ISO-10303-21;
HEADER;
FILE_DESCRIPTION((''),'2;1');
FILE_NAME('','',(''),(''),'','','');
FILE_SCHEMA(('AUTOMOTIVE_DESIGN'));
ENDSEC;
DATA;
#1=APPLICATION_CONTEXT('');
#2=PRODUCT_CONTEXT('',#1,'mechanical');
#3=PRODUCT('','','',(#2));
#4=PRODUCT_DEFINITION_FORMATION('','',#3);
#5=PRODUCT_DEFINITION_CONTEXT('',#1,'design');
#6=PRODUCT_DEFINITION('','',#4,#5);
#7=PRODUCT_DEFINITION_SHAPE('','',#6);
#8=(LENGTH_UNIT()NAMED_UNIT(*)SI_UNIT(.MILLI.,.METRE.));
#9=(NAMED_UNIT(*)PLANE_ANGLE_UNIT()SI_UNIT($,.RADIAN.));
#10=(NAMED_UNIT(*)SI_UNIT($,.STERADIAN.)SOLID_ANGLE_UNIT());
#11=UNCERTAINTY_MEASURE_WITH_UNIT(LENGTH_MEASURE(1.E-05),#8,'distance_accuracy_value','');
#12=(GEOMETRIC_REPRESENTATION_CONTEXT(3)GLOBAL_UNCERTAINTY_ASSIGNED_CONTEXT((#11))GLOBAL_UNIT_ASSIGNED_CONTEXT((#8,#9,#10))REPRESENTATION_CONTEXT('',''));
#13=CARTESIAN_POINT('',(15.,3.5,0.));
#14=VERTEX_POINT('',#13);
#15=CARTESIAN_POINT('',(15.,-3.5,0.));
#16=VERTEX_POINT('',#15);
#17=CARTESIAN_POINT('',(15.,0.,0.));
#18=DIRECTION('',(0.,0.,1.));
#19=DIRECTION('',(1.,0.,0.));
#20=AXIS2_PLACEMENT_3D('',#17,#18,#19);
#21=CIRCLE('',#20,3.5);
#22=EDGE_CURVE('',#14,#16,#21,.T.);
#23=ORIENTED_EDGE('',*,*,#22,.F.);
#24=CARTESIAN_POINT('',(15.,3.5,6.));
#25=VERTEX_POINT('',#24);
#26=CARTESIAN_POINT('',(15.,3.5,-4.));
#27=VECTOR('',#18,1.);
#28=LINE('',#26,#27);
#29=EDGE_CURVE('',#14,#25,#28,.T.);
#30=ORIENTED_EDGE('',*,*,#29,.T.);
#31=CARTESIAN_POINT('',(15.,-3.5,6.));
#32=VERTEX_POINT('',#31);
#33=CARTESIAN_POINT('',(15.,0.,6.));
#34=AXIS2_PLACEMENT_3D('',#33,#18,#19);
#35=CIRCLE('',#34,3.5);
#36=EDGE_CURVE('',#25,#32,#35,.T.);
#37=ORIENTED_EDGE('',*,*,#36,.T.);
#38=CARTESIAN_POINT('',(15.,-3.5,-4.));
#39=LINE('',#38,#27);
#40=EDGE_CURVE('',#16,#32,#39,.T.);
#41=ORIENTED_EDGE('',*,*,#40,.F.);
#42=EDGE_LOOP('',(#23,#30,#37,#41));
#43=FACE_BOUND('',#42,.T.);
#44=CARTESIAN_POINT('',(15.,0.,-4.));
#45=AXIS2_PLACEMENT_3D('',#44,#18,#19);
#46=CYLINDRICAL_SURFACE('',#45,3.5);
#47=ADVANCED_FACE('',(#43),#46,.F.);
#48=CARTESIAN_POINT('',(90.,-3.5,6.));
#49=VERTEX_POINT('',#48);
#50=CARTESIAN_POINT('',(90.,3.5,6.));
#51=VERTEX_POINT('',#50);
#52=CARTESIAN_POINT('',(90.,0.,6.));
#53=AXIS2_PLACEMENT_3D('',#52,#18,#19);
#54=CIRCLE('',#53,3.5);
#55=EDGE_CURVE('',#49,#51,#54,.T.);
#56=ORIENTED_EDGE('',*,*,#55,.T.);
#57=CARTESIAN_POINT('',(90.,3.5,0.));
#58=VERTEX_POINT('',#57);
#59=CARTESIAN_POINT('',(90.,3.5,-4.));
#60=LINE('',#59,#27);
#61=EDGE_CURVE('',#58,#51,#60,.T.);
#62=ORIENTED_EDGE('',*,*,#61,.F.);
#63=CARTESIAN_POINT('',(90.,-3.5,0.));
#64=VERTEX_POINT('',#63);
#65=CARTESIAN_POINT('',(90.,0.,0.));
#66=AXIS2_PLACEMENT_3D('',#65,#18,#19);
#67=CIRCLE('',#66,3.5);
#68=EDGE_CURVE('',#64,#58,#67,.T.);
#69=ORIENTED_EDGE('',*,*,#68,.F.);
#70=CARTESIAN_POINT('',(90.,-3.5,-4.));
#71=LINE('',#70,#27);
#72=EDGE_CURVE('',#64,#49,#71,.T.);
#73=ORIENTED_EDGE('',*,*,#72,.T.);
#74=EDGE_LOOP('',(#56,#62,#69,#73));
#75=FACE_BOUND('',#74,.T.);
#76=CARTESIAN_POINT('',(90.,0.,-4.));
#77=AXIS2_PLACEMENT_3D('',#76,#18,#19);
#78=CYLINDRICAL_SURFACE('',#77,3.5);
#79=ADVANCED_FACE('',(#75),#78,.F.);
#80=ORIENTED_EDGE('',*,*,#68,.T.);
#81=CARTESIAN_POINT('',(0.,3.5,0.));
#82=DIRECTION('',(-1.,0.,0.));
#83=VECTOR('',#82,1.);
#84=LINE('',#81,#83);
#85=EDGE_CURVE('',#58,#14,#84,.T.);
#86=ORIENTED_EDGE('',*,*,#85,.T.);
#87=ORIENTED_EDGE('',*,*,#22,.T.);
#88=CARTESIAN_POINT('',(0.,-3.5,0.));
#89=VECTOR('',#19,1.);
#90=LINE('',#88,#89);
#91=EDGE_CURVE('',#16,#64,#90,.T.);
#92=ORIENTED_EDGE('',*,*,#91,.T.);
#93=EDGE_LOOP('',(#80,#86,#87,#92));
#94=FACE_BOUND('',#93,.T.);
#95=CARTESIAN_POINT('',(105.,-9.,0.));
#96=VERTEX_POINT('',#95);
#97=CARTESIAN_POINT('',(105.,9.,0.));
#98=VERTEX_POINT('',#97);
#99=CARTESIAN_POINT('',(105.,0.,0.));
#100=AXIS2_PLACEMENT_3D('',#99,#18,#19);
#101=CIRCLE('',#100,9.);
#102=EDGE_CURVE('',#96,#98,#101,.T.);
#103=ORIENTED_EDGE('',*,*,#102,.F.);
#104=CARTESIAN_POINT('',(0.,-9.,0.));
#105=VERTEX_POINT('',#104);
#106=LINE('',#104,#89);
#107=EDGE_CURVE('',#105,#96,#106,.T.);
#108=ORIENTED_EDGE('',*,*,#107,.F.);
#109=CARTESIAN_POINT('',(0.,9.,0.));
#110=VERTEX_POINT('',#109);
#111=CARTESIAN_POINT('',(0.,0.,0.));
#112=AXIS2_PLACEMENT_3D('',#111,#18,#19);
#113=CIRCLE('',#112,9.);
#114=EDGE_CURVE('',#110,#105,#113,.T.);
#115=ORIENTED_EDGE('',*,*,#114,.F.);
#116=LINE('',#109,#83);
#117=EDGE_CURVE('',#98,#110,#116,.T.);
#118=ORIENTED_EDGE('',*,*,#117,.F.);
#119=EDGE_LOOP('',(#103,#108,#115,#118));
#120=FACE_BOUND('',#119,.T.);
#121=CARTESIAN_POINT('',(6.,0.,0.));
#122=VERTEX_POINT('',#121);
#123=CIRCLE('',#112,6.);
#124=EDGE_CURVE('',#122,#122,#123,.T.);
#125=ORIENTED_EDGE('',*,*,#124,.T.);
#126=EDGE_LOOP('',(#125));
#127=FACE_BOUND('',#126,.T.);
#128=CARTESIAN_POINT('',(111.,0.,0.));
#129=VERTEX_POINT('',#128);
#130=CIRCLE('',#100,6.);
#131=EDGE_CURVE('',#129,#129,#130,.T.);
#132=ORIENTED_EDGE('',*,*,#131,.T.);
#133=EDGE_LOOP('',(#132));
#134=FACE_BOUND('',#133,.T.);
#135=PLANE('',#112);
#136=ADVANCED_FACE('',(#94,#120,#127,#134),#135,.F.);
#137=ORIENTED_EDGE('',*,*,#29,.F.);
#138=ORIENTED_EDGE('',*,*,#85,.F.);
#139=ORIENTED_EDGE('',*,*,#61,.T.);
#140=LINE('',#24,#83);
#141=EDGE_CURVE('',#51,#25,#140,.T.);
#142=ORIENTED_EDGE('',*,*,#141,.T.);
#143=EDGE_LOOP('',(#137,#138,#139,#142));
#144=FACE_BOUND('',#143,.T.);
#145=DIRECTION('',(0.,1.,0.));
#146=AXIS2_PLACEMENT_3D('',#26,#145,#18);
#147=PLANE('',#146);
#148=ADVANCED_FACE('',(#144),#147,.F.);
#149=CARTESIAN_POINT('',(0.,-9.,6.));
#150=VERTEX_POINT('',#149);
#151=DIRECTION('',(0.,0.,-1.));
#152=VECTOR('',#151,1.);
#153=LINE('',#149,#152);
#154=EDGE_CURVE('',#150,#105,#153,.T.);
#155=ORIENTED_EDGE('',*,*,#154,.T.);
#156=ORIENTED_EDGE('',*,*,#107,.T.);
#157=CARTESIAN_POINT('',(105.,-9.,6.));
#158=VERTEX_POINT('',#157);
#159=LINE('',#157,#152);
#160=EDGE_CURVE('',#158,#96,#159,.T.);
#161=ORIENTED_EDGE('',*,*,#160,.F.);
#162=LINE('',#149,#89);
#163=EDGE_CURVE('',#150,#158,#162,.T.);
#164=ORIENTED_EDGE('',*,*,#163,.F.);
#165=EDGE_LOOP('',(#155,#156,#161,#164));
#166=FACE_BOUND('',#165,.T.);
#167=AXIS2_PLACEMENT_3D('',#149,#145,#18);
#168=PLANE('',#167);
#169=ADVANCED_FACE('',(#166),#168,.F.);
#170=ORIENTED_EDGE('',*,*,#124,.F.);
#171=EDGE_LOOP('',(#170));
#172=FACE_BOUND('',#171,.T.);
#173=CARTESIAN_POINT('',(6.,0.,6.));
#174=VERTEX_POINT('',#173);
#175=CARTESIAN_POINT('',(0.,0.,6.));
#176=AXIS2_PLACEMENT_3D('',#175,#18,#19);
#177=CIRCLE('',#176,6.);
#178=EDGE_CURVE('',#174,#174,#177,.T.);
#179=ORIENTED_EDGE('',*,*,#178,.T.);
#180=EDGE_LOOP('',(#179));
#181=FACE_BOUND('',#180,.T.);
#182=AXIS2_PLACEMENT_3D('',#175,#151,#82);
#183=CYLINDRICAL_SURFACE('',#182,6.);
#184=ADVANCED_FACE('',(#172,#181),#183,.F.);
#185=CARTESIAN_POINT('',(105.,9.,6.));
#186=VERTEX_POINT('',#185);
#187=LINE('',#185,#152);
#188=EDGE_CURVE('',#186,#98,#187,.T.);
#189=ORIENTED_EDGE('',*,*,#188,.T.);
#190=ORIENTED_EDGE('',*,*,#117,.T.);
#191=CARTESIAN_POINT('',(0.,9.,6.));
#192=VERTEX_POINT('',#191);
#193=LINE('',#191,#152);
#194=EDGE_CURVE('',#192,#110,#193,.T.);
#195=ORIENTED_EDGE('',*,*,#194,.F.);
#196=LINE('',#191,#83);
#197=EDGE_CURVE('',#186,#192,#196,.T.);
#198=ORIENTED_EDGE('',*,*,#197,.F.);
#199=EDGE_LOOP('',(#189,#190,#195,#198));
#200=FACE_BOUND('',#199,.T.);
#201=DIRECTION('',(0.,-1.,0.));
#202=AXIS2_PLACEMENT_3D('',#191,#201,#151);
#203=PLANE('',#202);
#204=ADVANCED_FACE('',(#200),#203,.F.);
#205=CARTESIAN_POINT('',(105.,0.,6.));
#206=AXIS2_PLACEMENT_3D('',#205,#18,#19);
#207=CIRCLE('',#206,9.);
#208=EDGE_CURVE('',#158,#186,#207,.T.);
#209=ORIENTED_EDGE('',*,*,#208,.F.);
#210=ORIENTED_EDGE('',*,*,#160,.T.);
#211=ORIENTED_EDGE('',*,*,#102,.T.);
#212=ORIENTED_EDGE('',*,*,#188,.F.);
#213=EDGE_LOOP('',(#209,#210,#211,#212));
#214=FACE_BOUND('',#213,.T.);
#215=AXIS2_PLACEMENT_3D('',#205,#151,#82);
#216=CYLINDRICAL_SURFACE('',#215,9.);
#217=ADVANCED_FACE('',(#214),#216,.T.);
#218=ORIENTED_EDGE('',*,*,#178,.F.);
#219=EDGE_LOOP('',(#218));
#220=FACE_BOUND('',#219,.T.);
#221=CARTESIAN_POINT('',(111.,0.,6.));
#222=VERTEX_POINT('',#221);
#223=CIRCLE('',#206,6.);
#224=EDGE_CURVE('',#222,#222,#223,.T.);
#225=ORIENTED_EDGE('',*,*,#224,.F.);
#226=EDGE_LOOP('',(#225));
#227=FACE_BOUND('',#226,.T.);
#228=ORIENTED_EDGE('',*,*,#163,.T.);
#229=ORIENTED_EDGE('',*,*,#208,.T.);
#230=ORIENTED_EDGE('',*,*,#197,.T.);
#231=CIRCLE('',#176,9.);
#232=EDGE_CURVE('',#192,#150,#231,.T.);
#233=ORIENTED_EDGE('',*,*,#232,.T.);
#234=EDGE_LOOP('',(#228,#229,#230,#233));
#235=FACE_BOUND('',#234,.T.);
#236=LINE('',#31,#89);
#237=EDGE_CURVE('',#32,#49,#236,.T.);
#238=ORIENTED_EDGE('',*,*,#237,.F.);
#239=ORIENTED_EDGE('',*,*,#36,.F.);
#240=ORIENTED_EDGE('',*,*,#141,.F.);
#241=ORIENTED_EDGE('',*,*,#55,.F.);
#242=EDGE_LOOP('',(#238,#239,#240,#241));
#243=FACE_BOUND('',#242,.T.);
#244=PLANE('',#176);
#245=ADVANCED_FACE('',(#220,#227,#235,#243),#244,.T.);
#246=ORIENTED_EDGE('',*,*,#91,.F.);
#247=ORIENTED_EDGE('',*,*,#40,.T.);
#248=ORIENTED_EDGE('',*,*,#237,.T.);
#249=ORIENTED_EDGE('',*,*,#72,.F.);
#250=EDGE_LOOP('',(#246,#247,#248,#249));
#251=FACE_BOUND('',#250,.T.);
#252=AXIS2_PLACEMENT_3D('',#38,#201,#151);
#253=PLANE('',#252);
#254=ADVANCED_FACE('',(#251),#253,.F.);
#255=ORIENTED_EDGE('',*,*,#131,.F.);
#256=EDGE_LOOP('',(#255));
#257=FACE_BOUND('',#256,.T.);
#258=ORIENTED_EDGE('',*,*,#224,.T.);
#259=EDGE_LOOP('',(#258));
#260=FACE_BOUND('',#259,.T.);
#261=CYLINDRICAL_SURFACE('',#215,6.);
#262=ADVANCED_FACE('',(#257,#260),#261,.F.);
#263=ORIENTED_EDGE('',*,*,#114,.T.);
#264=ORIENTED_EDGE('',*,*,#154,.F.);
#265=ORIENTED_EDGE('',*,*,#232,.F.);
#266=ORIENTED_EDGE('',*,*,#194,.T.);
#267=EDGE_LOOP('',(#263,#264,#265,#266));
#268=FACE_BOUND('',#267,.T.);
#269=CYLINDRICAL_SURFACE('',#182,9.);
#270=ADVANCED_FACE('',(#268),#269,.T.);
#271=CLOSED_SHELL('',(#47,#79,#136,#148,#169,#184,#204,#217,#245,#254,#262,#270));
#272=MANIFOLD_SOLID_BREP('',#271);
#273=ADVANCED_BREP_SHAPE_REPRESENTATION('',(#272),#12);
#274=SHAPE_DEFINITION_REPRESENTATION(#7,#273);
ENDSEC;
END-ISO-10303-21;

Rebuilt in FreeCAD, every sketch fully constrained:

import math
import FreeCAD as App
import Part
import Sketcher
from FreeCAD import Vector

doc = App.newDocument("Part")
params = doc.addObject("Spreadsheet::Sheet", "Params")
for row, (alias, value) in enumerate([
    ("sketch1_diameter", "12 mm"),
    ("sketch1_radius", "9 mm"),
    ("sketch1_width", "105 mm"),
    ("pad1_length", "6 mm"),
    ("sketch2_radius", "3.5 mm"),
    ("sketch2_width", "75 mm"),
    ("pocket1_length", "10 mm"),
], start=1):
    params.set(f"A{row}", alias)
    params.set(f"B{row}", "=" + value)
    params.setAlias(f"B{row}", alias)

body = doc.addObject("PartDesign::Body", "Body")

# Sketch on XY plane
sketch1 = body.newObject("Sketcher::SketchObject", "Sketch")
sketch1.AttachmentSupport = (doc.getObject("XY_Plane"), [""])
sketch1.MapMode = "FlatFace"
sketch1.addGeometry([
    Part.LineSegment(Vector(105, 9, 0), Vector(0, 9, 0)),  # 0
    Part.ArcOfCircle(Part.Circle(Vector(0, 0, 0), Vector(0, 0, 1), 9), math.radians(90), math.radians(270)),  # 1
    Part.LineSegment(Vector(0, -9, 0), Vector(105, -9, 0)),  # 2
    Part.ArcOfCircle(Part.Circle(Vector(105, 0, 0), Vector(0, 0, 1), 9), math.radians(-90), math.radians(90)),  # 3
    Part.Circle(Vector(105, 0, 0), Vector(0, 0, 1), 6),  # 4
    Part.Circle(Vector(0, 0, 0), Vector(0, 0, 1), 6),  # 5
], False)
sketch1.addConstraint([
    Sketcher.Constraint("Tangent", 0, 2, 1, 1),
    Sketcher.Constraint("Tangent", 1, 2, 2, 1),
    Sketcher.Constraint("Tangent", 2, 2, 3, 1),
    Sketcher.Constraint("Tangent", 3, 2, 0, 1),
    Sketcher.Constraint("Horizontal", 0),
    Sketcher.Constraint("Horizontal", 2),
    Sketcher.Constraint("Coincident", 1, 3, -1, 1),
    Sketcher.Constraint("Coincident", 5, 3, -1, 1),
    Sketcher.Constraint("Coincident", 4, 3, 3, 3),
    Sketcher.Constraint("Equal", 4, 5),
    Sketcher.Constraint("Diameter", 4, 12.0),
    Sketcher.Constraint("Radius", 1, 9.0),
    Sketcher.Constraint("DistanceX", 0, 2, 0, 1, 105.0),
])
sketch1.setExpression("Constraints[10]", "Params.sketch1_diameter")
sketch1.setExpression("Constraints[11]", "Params.sketch1_radius")
sketch1.setExpression("Constraints[12]", "Params.sketch1_width")
pad1 = body.newObject("PartDesign::Pad", "Pad")
pad1.Profile = sketch1
pad1.setExpression("Length", "Params.pad1_length")

# Sketch on XY plane
sketch2 = body.newObject("Sketcher::SketchObject", "Sketch001")
sketch2.AttachmentSupport = (doc.getObject("XY_Plane"), [""])
sketch2.MapMode = "FlatFace"
sketch2.AttachmentOffset = App.Placement(Vector(0, 0, 6), App.Rotation())
sketch2.addGeometry([
    Part.LineSegment(Vector(90, 3.5, 0), Vector(15, 3.5, 0)),
    Part.ArcOfCircle(Part.Circle(Vector(15, 0, 0), Vector(0, 0, 1), 3.5), math.radians(90), math.radians(270)),
    Part.LineSegment(Vector(15, -3.5, 0), Vector(90, -3.5, 0)),
    Part.ArcOfCircle(Part.Circle(Vector(90, 0, 0), Vector(0, 0, 1), 3.5), math.radians(-90), math.radians(90)),
], False)
sketch2.addConstraint([
    Sketcher.Constraint("Tangent", 0, 2, 1, 1),
    Sketcher.Constraint("Tangent", 1, 2, 2, 1),
    Sketcher.Constraint("Tangent", 2, 2, 3, 1),
    Sketcher.Constraint("Tangent", 3, 2, 0, 1),
    Sketcher.Constraint("Horizontal", 0),
    Sketcher.Constraint("Horizontal", 2),
    Sketcher.Constraint("PointOnObject", 1, 3, -1),
    Sketcher.Constraint("Radius", 1, 3.5),
    Sketcher.Constraint("DistanceX", 0, 2, 0, 1, 75.0),
    Sketcher.Constraint("DistanceX", -1, 1, 1, 3, 15.0),
])
sketch2.setExpression("Constraints[7]", "Params.sketch2_radius")
sketch2.setExpression("Constraints[8]", "Params.sketch2_width")
pocket1 = body.newObject("PartDesign::Pocket", "Pocket")
pocket1.Profile = sketch2
pocket1.setExpression("Length", "Params.pocket1_length")

doc.recompute()
